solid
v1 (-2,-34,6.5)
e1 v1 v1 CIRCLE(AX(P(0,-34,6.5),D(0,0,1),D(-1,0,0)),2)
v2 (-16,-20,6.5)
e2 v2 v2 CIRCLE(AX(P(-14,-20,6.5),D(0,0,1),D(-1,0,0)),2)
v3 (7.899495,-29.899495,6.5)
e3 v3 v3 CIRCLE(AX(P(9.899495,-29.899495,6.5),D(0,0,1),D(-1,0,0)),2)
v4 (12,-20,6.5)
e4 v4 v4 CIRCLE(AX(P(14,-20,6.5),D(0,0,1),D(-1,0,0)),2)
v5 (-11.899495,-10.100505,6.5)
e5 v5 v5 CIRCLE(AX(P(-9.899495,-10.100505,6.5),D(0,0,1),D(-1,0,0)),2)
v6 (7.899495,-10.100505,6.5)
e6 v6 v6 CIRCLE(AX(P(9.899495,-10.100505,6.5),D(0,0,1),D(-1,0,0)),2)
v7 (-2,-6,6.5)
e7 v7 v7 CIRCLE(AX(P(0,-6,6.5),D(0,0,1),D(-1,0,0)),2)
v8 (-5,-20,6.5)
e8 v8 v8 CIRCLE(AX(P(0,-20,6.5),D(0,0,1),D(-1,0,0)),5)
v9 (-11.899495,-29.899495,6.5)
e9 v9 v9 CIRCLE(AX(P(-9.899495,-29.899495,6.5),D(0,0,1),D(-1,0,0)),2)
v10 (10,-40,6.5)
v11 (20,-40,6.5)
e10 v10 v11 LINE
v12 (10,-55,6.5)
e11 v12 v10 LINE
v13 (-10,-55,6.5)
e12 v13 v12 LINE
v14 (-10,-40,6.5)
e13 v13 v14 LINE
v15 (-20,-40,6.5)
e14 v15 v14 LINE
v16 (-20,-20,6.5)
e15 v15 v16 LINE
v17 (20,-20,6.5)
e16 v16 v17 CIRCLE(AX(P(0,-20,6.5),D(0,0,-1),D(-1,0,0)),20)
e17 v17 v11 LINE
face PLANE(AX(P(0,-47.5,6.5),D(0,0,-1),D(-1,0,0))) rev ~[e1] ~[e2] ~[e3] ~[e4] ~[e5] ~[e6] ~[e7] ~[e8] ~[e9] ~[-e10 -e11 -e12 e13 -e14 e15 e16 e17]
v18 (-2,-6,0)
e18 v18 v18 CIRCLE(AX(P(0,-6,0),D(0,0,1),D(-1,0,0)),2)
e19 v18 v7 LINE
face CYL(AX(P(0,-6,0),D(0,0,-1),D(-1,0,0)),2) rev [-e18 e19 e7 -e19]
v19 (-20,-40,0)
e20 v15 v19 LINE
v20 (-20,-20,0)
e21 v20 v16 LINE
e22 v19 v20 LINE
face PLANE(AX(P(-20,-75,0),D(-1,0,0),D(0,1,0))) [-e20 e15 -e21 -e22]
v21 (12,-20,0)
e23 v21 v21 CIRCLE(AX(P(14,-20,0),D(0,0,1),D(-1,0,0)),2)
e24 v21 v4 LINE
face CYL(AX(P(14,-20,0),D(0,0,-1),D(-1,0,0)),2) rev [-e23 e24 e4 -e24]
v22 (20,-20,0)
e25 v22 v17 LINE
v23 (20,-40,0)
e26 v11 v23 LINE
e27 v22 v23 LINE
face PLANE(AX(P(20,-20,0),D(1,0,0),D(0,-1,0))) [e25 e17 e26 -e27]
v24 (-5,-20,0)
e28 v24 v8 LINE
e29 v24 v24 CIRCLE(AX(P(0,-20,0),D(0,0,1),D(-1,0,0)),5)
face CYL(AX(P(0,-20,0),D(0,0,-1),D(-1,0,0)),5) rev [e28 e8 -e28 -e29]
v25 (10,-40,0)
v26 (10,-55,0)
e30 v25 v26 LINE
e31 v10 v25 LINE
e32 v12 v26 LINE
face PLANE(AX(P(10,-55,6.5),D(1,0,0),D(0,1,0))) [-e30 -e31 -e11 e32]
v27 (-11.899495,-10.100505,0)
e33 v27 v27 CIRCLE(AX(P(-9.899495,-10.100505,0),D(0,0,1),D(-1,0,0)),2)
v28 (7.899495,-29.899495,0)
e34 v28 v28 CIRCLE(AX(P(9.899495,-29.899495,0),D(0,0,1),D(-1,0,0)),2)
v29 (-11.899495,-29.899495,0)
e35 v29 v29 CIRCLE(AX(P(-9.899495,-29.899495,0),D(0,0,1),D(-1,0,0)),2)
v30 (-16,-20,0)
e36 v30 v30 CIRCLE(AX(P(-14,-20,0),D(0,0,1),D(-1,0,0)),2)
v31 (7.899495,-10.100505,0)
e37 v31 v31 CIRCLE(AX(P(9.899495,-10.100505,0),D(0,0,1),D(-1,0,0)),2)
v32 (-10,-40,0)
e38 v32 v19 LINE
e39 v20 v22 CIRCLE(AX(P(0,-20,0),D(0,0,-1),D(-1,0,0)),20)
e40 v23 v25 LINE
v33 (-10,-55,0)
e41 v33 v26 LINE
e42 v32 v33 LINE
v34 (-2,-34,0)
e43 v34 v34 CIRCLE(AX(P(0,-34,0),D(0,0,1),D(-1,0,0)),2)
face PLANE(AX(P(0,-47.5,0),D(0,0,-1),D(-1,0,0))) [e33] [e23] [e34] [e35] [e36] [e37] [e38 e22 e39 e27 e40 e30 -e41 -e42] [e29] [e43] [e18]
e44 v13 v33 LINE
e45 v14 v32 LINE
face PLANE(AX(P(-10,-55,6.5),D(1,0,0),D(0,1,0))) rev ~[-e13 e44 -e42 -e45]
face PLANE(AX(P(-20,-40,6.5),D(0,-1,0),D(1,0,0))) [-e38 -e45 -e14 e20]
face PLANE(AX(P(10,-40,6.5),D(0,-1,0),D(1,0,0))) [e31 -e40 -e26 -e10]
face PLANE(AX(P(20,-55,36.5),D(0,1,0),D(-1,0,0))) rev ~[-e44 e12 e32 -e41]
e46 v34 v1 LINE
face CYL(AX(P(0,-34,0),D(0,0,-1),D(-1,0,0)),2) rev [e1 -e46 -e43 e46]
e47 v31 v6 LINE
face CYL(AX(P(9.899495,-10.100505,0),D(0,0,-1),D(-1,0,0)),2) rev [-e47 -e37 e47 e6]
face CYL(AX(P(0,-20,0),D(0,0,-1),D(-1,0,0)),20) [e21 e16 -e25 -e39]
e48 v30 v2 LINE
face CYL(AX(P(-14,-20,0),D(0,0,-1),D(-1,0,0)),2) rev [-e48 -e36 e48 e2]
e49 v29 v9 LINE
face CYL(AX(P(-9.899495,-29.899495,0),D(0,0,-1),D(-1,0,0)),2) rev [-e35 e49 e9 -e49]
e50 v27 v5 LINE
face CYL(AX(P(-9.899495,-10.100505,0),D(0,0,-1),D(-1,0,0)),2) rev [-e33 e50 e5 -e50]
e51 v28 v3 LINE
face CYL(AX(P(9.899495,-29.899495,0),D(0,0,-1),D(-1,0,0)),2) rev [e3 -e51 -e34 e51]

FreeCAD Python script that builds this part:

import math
import FreeCAD as App
import Part
import Sketcher
from FreeCAD import Vector
Q = App.Units.Quantity

doc = App.newDocument("Part")
body = doc.addObject("PartDesign::Body", "Body")

# Sketch on XY plane
sketch1 = doc.addObject("Sketcher::SketchObject", "Sketch")
body.addObject(sketch1)
sketch1.AttachmentSupport = (doc.XY_Plane, [""])
sketch1.MapMode = "FlatFace"
sketch1.addGeometry([
    Part.LineSegment(Vector(20, -75, 0), Vector(20, -20, 0)),  # 0
    Part.ArcOfCircle(Part.Circle(Vector(0, -20, 0), Vector(0, 0, 1), 20), math.radians(0), math.radians(180)),  # 1
    Part.LineSegment(Vector(-20, -20, 0), Vector(-20, -75, 0)),  # 2
    Part.ArcOfCircle(Part.Circle(Vector(0, -75, 0), Vector(0, 0, 1), 20), math.radians(180), math.radians(360)),  # 3
    Part.Circle(Vector(0, -75, 0), Vector(0, 0, 1), 15),  # 4
    Part.Circle(Vector(9.899495, -29.899495, 0), Vector(0, 0, 1), 2),  # 5
    Part.Circle(Vector(14, -20, 0), Vector(0, 0, 1), 2),  # 6
    Part.Circle(Vector(9.899495, -10.100505, 0), Vector(0, 0, 1), 2),  # 7
    Part.Circle(Vector(0, -34, 0), Vector(0, 0, 1), 2),  # 8
    Part.Circle(Vector(-9.899495, -29.899495, 0), Vector(0, 0, 1), 2),  # 9
    Part.Circle(Vector(0, -20, 0), Vector(0, 0, 1), 5),  # 10
    Part.Circle(Vector(0, -6, 0), Vector(0, 0, 1), 2),  # 11
    Part.Circle(Vector(-14, -20, 0), Vector(0, 0, 1), 2),  # 12
    Part.Circle(Vector(-9.899495, -10.100505, 0), Vector(0, 0, 1), 2),  # 13
], False)
sketch1.addConstraint([
    Sketcher.Constraint("Tangent", 0, 2, 1, 1),
    Sketcher.Constraint("Tangent", 1, 2, 2, 1),
    Sketcher.Constraint("Tangent", 2, 2, 3, 1),
    Sketcher.Constraint("Tangent", 3, 2, 0, 1),
    Sketcher.Constraint("Vertical", 0),
    Sketcher.Constraint("Vertical", 2),
    Sketcher.Constraint("Coincident", 4, 3, 3, 3),
    Sketcher.Constraint("Coincident", 10, 3, 1, 3),
    Sketcher.Constraint("Equal", 5, 6),
    Sketcher.Constraint("Equal", 6, 7),
    Sketcher.Constraint("Equal", 7, 8),
    Sketcher.Constraint("Equal", 8, 9),
    Sketcher.Constraint("Equal", 9, 11),
    Sketcher.Constraint("Equal", 11, 12),
    Sketcher.Constraint("Equal", 12, 13),
    Sketcher.Constraint("Symmetric", 5, 3, 9, 3, -2),
    Sketcher.Constraint("Symmetric", 6, 3, 12, 3, -2),
    Sketcher.Constraint("Symmetric", 7, 3, 13, 3, -2),
    Sketcher.Constraint("PointOnObject", 1, 3, -2),
    Sketcher.Constraint("PointOnObject", 8, 3, -2),
    Sketcher.Constraint("PointOnObject", 11, 3, -2),
    Sketcher.Constraint("Horizontal", 1, 3, 6, 3),
    Sketcher.Constraint("Vertical", 5, 3, 7, 3),
    Sketcher.Constraint("Diameter", 4, Q("30 mm")),
    Sketcher.Constraint("Diameter", 5, Q("4 mm")),
    Sketcher.Constraint("Diameter", 10, Q("10 mm")),
    Sketcher.Constraint("Radius", 1, Q("20 mm")),
    Sketcher.Constraint("DistanceY", 0, 1, 0, 2, Q("55 mm")),
    Sketcher.Constraint("DistanceY", 1, 3, -1, 1, Q("20 mm")),
    Sketcher.Constraint("DistanceX", -1, 1, 6, 3, Q("14 mm")),
    Sketcher.Constraint("DistanceY", 8, 3, -1, 1, Q("34 mm")),
    Sketcher.Constraint("DistanceY", 11, 3, -1, 1, Q("6 mm")),
    Sketcher.Constraint("DistanceY", 5, 3, 7, 3, Q("19.79899 mm")),
    Sketcher.Constraint("DistanceX", 9, 3, 5, 3, Q("19.79899 mm")),
    Sketcher.Constraint("DistanceY", 5, 3, -1, 1, Q("29.899495 mm")),
])
pad1 = doc.addObject("PartDesign::Pad", "Pad")
body.addObject(pad1)
pad1.Profile = sketch1
pad1.Length = 6.5

# Sketch on XY plane
sketch2 = doc.addObject("Sketcher::SketchObject", "Sketch001")
body.addObject(sketch2)
sketch2.AttachmentSupport = (doc.XY_Plane, [""])
sketch2.MapMode = "FlatFace"
sketch2.AttachmentOffset = App.Placement(Vector(0, 0, 6.5), App.Rotation())
sketch2.addGeometry([
    Part.LineSegment(Vector(12, -59, 0), Vector(-12, -59, 0)),  # 0
    Part.ArcOfCircle(Part.Circle(Vector(0, -75, 0), Vector(0, 0, 1), 20), math.radians(126.869898), math.radians(413.130102)),  # 1
    Part.Circle(Vector(0, -88, 0), Vector(0, 0, 1), 1.5),  # 2
    Part.Circle(Vector(-13, -75, 0), Vector(0, 0, 1), 1.5),  # 3
    Part.Circle(Vector(0, -75, 0), Vector(0, 0, 1), 9),  # 4
    Part.Circle(Vector(13, -75, 0), Vector(0, 0, 1), 1.5),  # 5
    Part.Circle(Vector(0, -62, 0), Vector(0, 0, 1), 1.5),  # 6
], False)
sketch2.addConstraint([
    Sketcher.Constraint("Coincident", 0, 1, 1, 2),
    Sketcher.Constraint("Coincident", 1, 1, 0, 2),
    Sketcher.Constraint("Horizontal", 0),
    Sketcher.Constraint("Coincident", 4, 3, 1, 3),
    Sketcher.Constraint("Equal", 2, 3),
    Sketcher.Constraint("Equal", 3, 5),
    Sketcher.Constraint("Equal", 5, 6),
    Sketcher.Constraint("Symmetric", 3, 3, 5, 3, -2),
    Sketcher.Constraint("PointOnObject", 1, 3, -2),
    Sketcher.Constraint("PointOnObject", 2, 3, -2),
    Sketcher.Constraint("PointOnObject", 6, 3, -2),
    Sketcher.Constraint("Horizontal", 1, 3, 3, 3),
    Sketcher.Constraint("Diameter", 2, Q("3 mm")),
    Sketcher.Constraint("Diameter", 4, Q("18 mm")),
    Sketcher.Constraint("Radius", 1, Q("20 mm")),
    Sketcher.Constraint("DistanceX", 0, 2, 0, 1, Q("24 mm")),
    Sketcher.Constraint("DistanceY", 1, 3, -1, 1, Q("75 mm")),
    Sketcher.Constraint("DistanceY", 2, 3, -1, 1, Q("88 mm")),
    Sketcher.Constraint("DistanceX", 3, 3, -1, 1, Q("13 mm")),
    Sketcher.Constraint("DistanceY", 6, 3, -1, 1, Q("62 mm")),
])
pad2 = doc.addObject("PartDesign::Pad", "Pad001")
body.addObject(pad2)
pad2.Profile = sketch2
pad2.Length = 30

# Sketch on XY plane
sketch3 = doc.addObject("Sketcher::SketchObject", "Sketch002")
body.addObject(sketch3)
sketch3.AttachmentSupport = (doc.XY_Plane, [""])
sketch3.MapMode = "FlatFace"
sketch3.AttachmentOffset = App.Placement(Vector(0, 0, 6.5), App.Rotation())
sketch3.addGeometry(Part.Circle(Vector(0, -75, 0), Vector(0, 0, 1), 15), False)
sketch3.addConstraint([
    Sketcher.Constraint("PointOnObject", 0, 3, -2),
    Sketcher.Constraint("Diameter", 0, Q("30 mm")),
    Sketcher.Constraint("DistanceY", 0, 3, -1, 1, Q("75 mm")),
])
pocket1 = doc.addObject("PartDesign::Pocket", "Pocket")
body.addObject(pocket1)
pocket1.Profile = sketch3
pocket1.Length = 27
pocket1.Reversed = True

# Sketch on YZ plane
sketch4 = doc.addObject("Sketcher::SketchObject", "Sketch003")
body.addObject(sketch4)
sketch4.AttachmentSupport = (doc.YZ_Plane, [""])
sketch4.MapMode = "FlatFace"
sketch4.addGeometry([
    Part.LineSegment(Vector(-95, 36.5, 0), Vector(-95, 30, 0)),
    Part.LineSegment(Vector(-95, 30, 0), Vector(-90, 36.5, 0)),
    Part.LineSegment(Vector(-90, 36.5, 0), Vector(-95, 36.5, 0)),
], False)
sketch4.addConstraint([
    Sketcher.Constraint("Coincident", 0, 2, 1, 1),
    Sketcher.Constraint("Coincident", 1, 2, 2, 1),
    Sketcher.Constraint("Coincident", 2, 2, 0, 1),
    Sketcher.Constraint("Vertical", 0),
    Sketcher.Constraint("Horizontal", 2),
    Sketcher.Constraint("DistanceX", 2, 2, 2, 1, Q("5 mm")),
    Sketcher.Constraint("DistanceY", 0, 2, 0, 1, Q("6.5 mm")),
    Sketcher.Constraint("DistanceX", 0, 2, -1, 1, Q("95 mm")),
    Sketcher.Constraint("DistanceY", -1, 1, 0, 2, Q("30 mm")),
])
pocket2 = doc.addObject("PartDesign::Pocket", "Pocket001")
body.addObject(pocket2)
pocket2.Profile = sketch4
pocket2.Type = "ThroughAll"
pocket2.Midplane = True

# Sketch on XY plane
sketch5 = doc.addObject("Sketcher::SketchObject", "Sketch004")
body.addObject(sketch5)
sketch5.AttachmentSupport = (doc.XY_Plane, [""])
sketch5.MapMode = "FlatFace"
sketch5.AttachmentOffset = App.Placement(Vector(0, 0, 36.5), App.Rotation())
sketch5.addGeometry([
    Part.LineSegment(Vector(20, -55, 0), Vector(-20, -55, 0)),
    Part.LineSegment(Vector(-20, -55, 0), Vector(-20, -75, 0)),
    Part.ArcOfCircle(Part.Circle(Vector(0, -75, 0), Vector(0, 0, 1), 20), math.radians(180), math.radians(360)),
    Part.LineSegment(Vector(20, -75, 0), Vector(20, -55, 0)),
], False)
sketch5.addConstraint([
    Sketcher.Constraint("Coincident", 0, 2, 1, 1),
    Sketcher.Constraint("Tangent", 1, 2, 2, 1),
    Sketcher.Constraint("Tangent", 2, 2, 3, 1),
    Sketcher.Constraint("Coincident", 3, 2, 0, 1),
    Sketcher.Constraint("Horizontal", 0),
    Sketcher.Constraint("Vertical", 1),
    Sketcher.Constraint("Vertical", 3),
    Sketcher.Constraint("PointOnObject", 2, 3, -2),
    Sketcher.Constraint("Radius", 2, Q("20 mm")),
    Sketcher.Constraint("DistanceY", 1, 2, 1, 1, Q("20 mm")),
    Sketcher.Constraint("DistanceY", 2, 3, -1, 1, Q("75 mm")),
])
pocket3 = doc.addObject("PartDesign::Pocket", "Pocket002")
body.addObject(pocket3)
pocket3.Profile = sketch5
pocket3.Type = "ThroughAll"

# Sketch on XY plane
sketch6 = doc.addObject("Sketcher::SketchObject", "Sketch005")
body.addObject(sketch6)
sketch6.AttachmentSupport = (doc.XY_Plane, [""])
sketch6.MapMode = "FlatFace"
sketch6.AttachmentOffset = App.Placement(Vector(0, 0, 6.5), App.Rotation())
sketch6.addGeometry([
    Part.LineSegment(Vector(-20, -40, 0), Vector(-20, -55, 0)),  # 0
    Part.LineSegment(Vector(-20, -55, 0), Vector(-10, -55, 0)),  # 1
    Part.LineSegment(Vector(-10, -55, 0), Vector(-10, -40, 0)),  # 2
    Part.LineSegment(Vector(-10, -40, 0), Vector(-20, -40, 0)),  # 3
    Part.LineSegment(Vector(10, -40, 0), Vector(10, -55, 0)),  # 4
    Part.LineSegment(Vector(10, -55, 0), Vector(20, -55, 0)),  # 5
    Part.LineSegment(Vector(20, -55, 0), Vector(20, -40, 0)),  # 6
    Part.LineSegment(Vector(20, -40, 0), Vector(10, -40, 0)),  # 7
], False)
sketch6.addConstraint([
    Sketcher.Constraint("Coincident", 0, 2, 1, 1),
    Sketcher.Constraint("Coincident", 1, 2, 2, 1),
    Sketcher.Constraint("Coincident", 2, 2, 3, 1),
    Sketcher.Constraint("Coincident", 3, 2, 0, 1),
    Sketcher.Constraint("Coincident", 4, 2, 5, 1),
    Sketcher.Constraint("Coincident", 5, 2, 6, 1),
    Sketcher.Constraint("Coincident", 6, 2, 7, 1),
    Sketcher.Constraint("Coincident", 7, 2, 4, 1),
    Sketcher.Constraint("Vertical", 0),
    Sketcher.Constraint("Horizontal", 1),
    Sketcher.Constraint("Vertical", 2),
    Sketcher.Constraint("Horizontal", 3),
    Sketcher.Constraint("Vertical", 4),
    Sketcher.Constraint("Horizontal", 5),
    Sketcher.Constraint("Vertical", 6),
    Sketcher.Constraint("Horizontal", 7),
    Sketcher.Constraint("Symmetric", 1, 2, 4, 2, -2),
    Sketcher.Constraint("Symmetric", 3, 2, 6, 2, -2),
    Sketcher.Constraint("DistanceX", 1, 1, 1, 2, Q("10 mm")),
    Sketcher.Constraint("DistanceY", 0, 2, 0, 1, Q("15 mm")),
    Sketcher.Constraint("DistanceX", 0, 2, -1, 1, Q("20 mm")),
    Sketcher.Constraint("DistanceY", 0, 2, -1, 1, Q("55 mm")),
])
pocket4 = doc.addObject("PartDesign::Pocket", "Pocket003")
body.addObject(pocket4)
pocket4.Profile = sketch6
pocket4.Type = "ThroughAll"

doc.recompute()
